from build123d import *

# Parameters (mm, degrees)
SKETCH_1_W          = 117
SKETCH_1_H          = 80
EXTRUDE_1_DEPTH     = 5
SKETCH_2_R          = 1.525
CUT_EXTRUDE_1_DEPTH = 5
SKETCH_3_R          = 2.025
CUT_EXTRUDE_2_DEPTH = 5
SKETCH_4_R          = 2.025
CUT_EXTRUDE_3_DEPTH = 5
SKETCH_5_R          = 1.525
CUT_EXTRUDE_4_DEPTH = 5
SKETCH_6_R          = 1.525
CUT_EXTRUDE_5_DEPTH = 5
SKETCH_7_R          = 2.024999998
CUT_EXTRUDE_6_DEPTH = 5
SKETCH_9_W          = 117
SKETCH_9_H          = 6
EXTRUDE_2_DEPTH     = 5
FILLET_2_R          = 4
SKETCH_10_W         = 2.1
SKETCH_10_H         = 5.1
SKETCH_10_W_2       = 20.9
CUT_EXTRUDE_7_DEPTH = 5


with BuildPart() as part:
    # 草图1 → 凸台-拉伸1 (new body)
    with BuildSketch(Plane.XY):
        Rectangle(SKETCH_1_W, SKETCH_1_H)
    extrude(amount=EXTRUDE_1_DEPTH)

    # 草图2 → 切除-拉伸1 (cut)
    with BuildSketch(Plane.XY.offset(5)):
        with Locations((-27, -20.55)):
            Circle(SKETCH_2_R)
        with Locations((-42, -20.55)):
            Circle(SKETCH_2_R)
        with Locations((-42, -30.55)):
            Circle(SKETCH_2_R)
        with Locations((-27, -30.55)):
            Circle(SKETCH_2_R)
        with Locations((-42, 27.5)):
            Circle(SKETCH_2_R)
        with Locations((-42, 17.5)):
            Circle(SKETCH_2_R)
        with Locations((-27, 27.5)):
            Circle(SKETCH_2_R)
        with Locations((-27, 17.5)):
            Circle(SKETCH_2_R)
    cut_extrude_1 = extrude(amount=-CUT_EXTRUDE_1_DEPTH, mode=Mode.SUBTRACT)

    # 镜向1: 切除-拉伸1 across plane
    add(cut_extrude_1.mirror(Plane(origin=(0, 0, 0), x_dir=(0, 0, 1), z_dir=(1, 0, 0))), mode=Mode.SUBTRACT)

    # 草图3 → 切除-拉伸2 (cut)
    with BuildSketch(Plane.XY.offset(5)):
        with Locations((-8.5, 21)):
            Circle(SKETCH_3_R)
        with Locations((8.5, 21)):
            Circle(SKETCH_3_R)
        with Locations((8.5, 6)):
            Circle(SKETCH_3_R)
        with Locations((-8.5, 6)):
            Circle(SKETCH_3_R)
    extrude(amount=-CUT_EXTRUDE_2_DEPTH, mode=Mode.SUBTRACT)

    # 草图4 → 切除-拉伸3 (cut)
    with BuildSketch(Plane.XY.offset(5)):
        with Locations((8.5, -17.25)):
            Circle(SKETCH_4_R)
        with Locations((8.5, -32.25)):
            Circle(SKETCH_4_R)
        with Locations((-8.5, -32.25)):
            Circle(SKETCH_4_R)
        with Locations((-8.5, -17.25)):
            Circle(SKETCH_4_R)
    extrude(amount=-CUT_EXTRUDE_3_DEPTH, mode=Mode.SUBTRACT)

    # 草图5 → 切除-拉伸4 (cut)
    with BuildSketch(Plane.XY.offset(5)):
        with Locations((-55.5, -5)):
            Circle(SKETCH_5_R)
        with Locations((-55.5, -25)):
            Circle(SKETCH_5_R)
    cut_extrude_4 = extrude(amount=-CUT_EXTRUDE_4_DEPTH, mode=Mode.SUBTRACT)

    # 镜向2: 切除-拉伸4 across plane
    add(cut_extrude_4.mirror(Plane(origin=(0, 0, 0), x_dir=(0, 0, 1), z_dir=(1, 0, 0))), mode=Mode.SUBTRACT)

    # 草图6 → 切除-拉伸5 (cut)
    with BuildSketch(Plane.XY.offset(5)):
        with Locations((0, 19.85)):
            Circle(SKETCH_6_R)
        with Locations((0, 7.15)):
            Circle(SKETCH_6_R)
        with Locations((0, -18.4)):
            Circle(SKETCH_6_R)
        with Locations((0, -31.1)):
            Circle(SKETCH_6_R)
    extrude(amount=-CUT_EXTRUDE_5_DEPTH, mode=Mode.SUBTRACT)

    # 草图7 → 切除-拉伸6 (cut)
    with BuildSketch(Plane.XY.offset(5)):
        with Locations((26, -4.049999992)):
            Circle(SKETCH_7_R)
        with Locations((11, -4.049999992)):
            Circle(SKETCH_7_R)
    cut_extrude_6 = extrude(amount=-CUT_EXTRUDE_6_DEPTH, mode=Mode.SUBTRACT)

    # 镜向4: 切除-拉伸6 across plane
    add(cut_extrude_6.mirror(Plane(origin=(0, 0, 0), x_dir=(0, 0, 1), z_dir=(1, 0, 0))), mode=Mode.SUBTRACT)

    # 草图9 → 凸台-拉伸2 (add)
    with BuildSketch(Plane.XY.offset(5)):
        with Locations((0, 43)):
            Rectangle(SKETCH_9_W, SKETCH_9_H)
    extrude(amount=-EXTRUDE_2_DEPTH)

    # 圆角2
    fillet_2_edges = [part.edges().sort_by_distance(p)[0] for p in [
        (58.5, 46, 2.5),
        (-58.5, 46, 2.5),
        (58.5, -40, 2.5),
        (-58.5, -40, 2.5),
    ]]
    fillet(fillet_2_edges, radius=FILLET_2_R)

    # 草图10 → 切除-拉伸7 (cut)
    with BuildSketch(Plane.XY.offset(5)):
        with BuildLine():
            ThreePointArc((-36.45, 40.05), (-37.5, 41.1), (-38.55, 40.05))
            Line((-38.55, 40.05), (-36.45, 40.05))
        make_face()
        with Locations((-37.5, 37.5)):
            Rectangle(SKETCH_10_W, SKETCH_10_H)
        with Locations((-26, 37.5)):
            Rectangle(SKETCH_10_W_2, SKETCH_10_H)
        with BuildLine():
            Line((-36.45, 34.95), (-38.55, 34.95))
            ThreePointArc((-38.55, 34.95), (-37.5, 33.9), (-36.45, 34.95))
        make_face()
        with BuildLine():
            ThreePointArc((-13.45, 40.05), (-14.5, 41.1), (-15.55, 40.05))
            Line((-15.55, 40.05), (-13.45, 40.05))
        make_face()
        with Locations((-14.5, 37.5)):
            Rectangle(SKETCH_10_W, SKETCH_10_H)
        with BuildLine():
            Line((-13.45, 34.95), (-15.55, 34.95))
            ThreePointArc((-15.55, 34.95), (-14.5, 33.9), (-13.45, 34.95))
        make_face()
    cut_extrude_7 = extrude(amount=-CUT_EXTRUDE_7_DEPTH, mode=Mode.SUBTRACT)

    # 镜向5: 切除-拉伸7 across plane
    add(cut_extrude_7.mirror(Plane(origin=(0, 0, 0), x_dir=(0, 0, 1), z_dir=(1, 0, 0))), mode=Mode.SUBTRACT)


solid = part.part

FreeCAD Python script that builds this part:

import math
import FreeCAD as App
import Part
import Sketcher
from FreeCAD import Vector
Q = App.Units.Quantity


def edges_at(feature, points):
    """Names of the edges that pass closest to the given points."""
    edges = feature.Shape.Edges
    near = lambda p: min(range(len(edges)), key=lambda i: edges[i].distToShape(Part.Vertex(*p))[0])
    return sorted({f"Edge{near(p) + 1}" for p in points})

doc = App.newDocument("Part")
body = doc.addObject("PartDesign::Body", "Body")

sketch1 = body.newObject("Sketcher::SketchObject", "Sketch")
sketch1.AttachmentSupport = (doc.getObject("XY_Plane"), [""])
sketch1.MapMode = "FlatFace"
sketch1.addGeometry([
    Part.LineSegment(Vector(-58, 40, 0), Vector(-58, -40, 0)),
    Part.LineSegment(Vector(-58, -40, 0), Vector(58, -40, 0)),
    Part.LineSegment(Vector(58, -40, 0), Vector(58, 40, 0)),
    Part.LineSegment(Vector(58, 40, 0), Vector(-58, 40, 0)),
], False)
sketch1.addConstraint([
    Sketcher.Constraint("Coincident", 0, 2, 1, 1),
    Sketcher.Constraint("Coincident", 1, 2, 2, 1),
    Sketcher.Constraint("Coincident", 2, 2, 3, 1),
    Sketcher.Constraint("Coincident", 3, 2, 0, 1),
    Sketcher.Constraint("Vertical", 0),
    Sketcher.Constraint("Horizontal", 1),
    Sketcher.Constraint("Vertical", 2),
    Sketcher.Constraint("Horizontal", 3),
    Sketcher.Constraint("Symmetric", 0, 2, 2, 2, -1, 1),
    Sketcher.Constraint("DistanceX", 1, 1, 1, 2, Q("117 mm")),
    Sketcher.Constraint("DistanceY", 0, 2, 0, 1, Q("80 mm")),
])
pad1 = body.newObject("PartDesign::Pad", "Pad")
pad1.Profile = sketch1
pad1.Length = 5

sketch2 = body.newObject("Sketcher::SketchObject", "Sketch001")
sketch2.AttachmentSupport = (doc.getObject("XY_Plane"), [""])
sketch2.MapMode = "FlatFace"
sketch2.AttachmentOffset = App.Placement(Vector(0, 0, 5), App.Rotation())
sketch2.addGeometry([
    Part.Circle(Vector(-27, -20.6, 0), Vector(0, 0, 1), 1.5),
    Part.Circle(Vector(-42, -20.6, 0), Vector(0, 0, 1), 1.5),
    Part.Circle(Vector(-42, -30.6, 0), Vector(0, 0, 1), 1.5),
    Part.Circle(Vector(-27, -30.6, 0), Vector(0, 0, 1), 1.5),
    Part.Circle(Vector(-42, 27.5, 0), Vector(0, 0, 1), 1.5),
    Part.Circle(Vector(-42, 17.5, 0), Vector(0, 0, 1), 1.5),
    Part.Circle(Vector(-27, 27.5, 0), Vector(0, 0, 1), 1.5),
    Part.Circle(Vector(-27, 17.5, 0), Vector(0, 0, 1), 1.5),
], False)
sketch2.addConstraint([
    Sketcher.Constraint("Equal", 0, 1),
    Sketcher.Constraint("Equal", 1, 2),
    Sketcher.Constraint("Equal", 2, 3),
    Sketcher.Constraint("Equal", 3, 4),
    Sketcher.Constraint("Equal", 4, 5),
    Sketcher.Constraint("Equal", 5, 6),
    Sketcher.Constraint("Equal", 6, 7),
    Sketcher.Constraint("Horizontal", 0, 3, 1, 3),
    Sketcher.Constraint("Horizontal", 2, 3, 3, 3),
    Sketcher.Constraint("Horizontal", 4, 3, 6, 3),
    Sketcher.Constraint("Horizontal", 5, 3, 7, 3),
    Sketcher.Constraint("Vertical", 1, 3, 2, 3),
    Sketcher.Constraint("Vertical", 0, 3, 3, 3),
    Sketcher.Constraint("Vertical", 2, 3, 4, 3),
    Sketcher.Constraint("Vertical", 4, 3, 5, 3),
    Sketcher.Constraint("Vertical", 3, 3, 6, 3),
    Sketcher.Constraint("Vertical", 6, 3, 7, 3),
    Sketcher.Constraint("Diameter", 0, Q("3.05 mm")),
    Sketcher.Constraint("DistanceX", 0, 3, -1, 1, Q("27 mm")),
    Sketcher.Constraint("DistanceX", 1, 3, -1, 1, Q("42 mm")),
    Sketcher.Constraint("DistanceY", 2, 3, 1, 3, Q("10 mm")),
    Sketcher.Constraint("DistanceY", 5, 3, 4, 3, Q("10 mm")),
    Sketcher.Constraint("DistanceY", -1, 1, 4, 3, Q("27.5 mm")),
    Sketcher.Constraint("DistanceY", 0, 3, -1, 1, Q("20.55 mm")),
])
pocket1 = body.newObject("PartDesign::Pocket", "Pocket")
pocket1.Profile = sketch2
pocket1.Length = 5
doc.recompute()

mirrored = body.newObject("PartDesign::Mirrored", "Mirrored")
mirrored.Originals = [pocket1]
mirrored.MirrorPlane = (doc.getObject("YZ_Plane"), [""])
body.Tip = mirrored

sketch3 = body.newObject("Sketcher::SketchObject", "Sketch002")
sketch3.AttachmentSupport = (doc.getObject("XY_Plane"), [""])
sketch3.MapMode = "FlatFace"
sketch3.AttachmentOffset = App.Placement(Vector(0, 0, 5), App.Rotation())
sketch3.addGeometry([
    Part.Circle(Vector(-8.5, 21, 0), Vector(0, 0, 1), 2),
    Part.Circle(Vector(8.5, 21, 0), Vector(0, 0, 1), 2),
    Part.Circle(Vector(8.5, 6, 0), Vector(0, 0, 1), 2),
    Part.Circle(Vector(-8.5, 6, 0), Vector(0, 0, 1), 2),
], False)
sketch3.addConstraint([
    Sketcher.Constraint("Equal", 0, 1),
    Sketcher.Constraint("Equal", 1, 2),
    Sketcher.Constraint("Equal", 2, 3),
    Sketcher.Constraint("Symmetric", 0, 3, 1, 3, -2),
    Sketcher.Constraint("Symmetric", 2, 3, 3, 3, -2),
    Sketcher.Constraint("Vertical", 1, 3, 2, 3),
    Sketcher.Constraint("Diameter", 0, Q("4.05 mm")),
    Sketcher.Constraint("DistanceY", -1, 1, 0, 3, Q("21 mm")),
    Sketcher.Constraint("DistanceY", -1, 1, 2, 3, Q("6 mm")),
    Sketcher.Constraint("DistanceX", 0, 3, 1, 3, Q("17 mm")),
])
pocket2 = body.newObject("PartDesign::Pocket", "Pocket001")
pocket2.Profile = sketch3
pocket2.Length = 5

sketch4 = body.newObject("Sketcher::SketchObject", "Sketch003")
sketch4.AttachmentSupport = (doc.getObject("XY_Plane"), [""])
sketch4.MapMode = "FlatFace"
sketch4.AttachmentOffset = App.Placement(Vector(0, 0, 5), App.Rotation())
sketch4.addGeometry([
    Part.Circle(Vector(8.5, -17.2, 0), Vector(0, 0, 1), 2),
    Part.Circle(Vector(8.5, -32.2, 0), Vector(0, 0, 1), 2),
    Part.Circle(Vector(-8.5, -32.2, 0), Vector(0, 0, 1), 2),
    Part.Circle(Vector(-8.5, -17.2, 0), Vector(0, 0, 1), 2),
], False)
sketch4.addConstraint([
    Sketcher.Constraint("Equal", 0, 1),
    Sketcher.Constraint("Equal", 1, 2),
    Sketcher.Constraint("Equal", 2, 3),
    Sketcher.Constraint("Symmetric", 1, 3, 2, 3, -2),
    Sketcher.Constraint("Symmetric", 0, 3, 3, 3, -2),
    Sketcher.Constraint("Vertical", 0, 3, 1, 3),
    Sketcher.Constraint("Diameter", 0, Q("4.05 mm")),
    Sketcher.Constraint("DistanceY", 1, 3, 0, 3, Q("15 mm")),
    Sketcher.Constraint("DistanceX", 2, 3, 1, 3, Q("17 mm")),
    Sketcher.Constraint("DistanceY", 0, 3, -1, 1, Q("17.25 mm")),
])
pocket3 = body.newObject("PartDesign::Pocket", "Pocket002")
pocket3.Profile = sketch4
pocket3.Length = 5

sketch5 = body.newObject("Sketcher::SketchObject", "Sketch004")
sketch5.AttachmentSupport = (doc.getObject("XY_Plane"), [""])
sketch5.MapMode = "FlatFace"
sketch5.AttachmentOffset = App.Placement(Vector(0, 0, 5), App.Rotation())
sketch5.addGeometry([
    Part.Circle(Vector(-55.5, -5, 0), Vector(0, 0, 1), 1.5),
    Part.Circle(Vector(-55.5, -25, 0), Vector(0, 0, 1), 1.5),
], False)
sketch5.addConstraint([
    Sketcher.Constraint("Equal", 0, 1),
    Sketcher.Constraint("Vertical", 0, 3, 1, 3),
    Sketcher.Constraint("Diameter", 0, Q("3.05 mm")),
    Sketcher.Constraint("DistanceY", 0, 3, -1, 1, Q("5 mm")),
    Sketcher.Constraint("DistanceY", 1, 3, -1, 1, Q("25 mm")),
    Sketcher.Constraint("DistanceX", 0, 3, -1, 1, Q("55.5 mm")),
])
pocket4 = body.newObject("PartDesign::Pocket", "Pocket003")
pocket4.Profile = sketch5
pocket4.Length = 5
doc.recompute()

mirrored2 = body.newObject("PartDesign::Mirrored", "Mirrored001")
mirrored2.Originals = [pocket4]
mirrored2.MirrorPlane = (doc.getObject("YZ_Plane"), [""])
body.Tip = mirrored2

sketch6 = body.newObject("Sketcher::SketchObject", "Sketch005")
sketch6.AttachmentSupport = (doc.getObject("XY_Plane"), [""])
sketch6.MapMode = "FlatFace"
sketch6.AttachmentOffset = App.Placement(Vector(0, 0, 5), App.Rotation())
sketch6.addGeometry([
    Part.Circle(Vector(0, 19.9, 0), Vector(0, 0, 1), 1.5),
    Part.Circle(Vector(0, 7.2, 0), Vector(0, 0, 1), 1.5),
    Part.Circle(Vector(0, -18.4, 0), Vector(0, 0, 1), 1.5),
    Part.Circle(Vector(0, -31.1, 0), Vector(0, 0, 1), 1.5),
], False)
sketch6.addConstraint([
    Sketcher.Constraint("Equal", 0, 1),
    Sketcher.Constraint("Equal", 1, 2),
    Sketcher.Constraint("Equal", 2, 3),
    Sketcher.Constraint("PointOnObject", 0, 3, -2),
    Sketcher.Constraint("PointOnObject", 1, 3, -2),
    Sketcher.Constraint("PointOnObject", 2, 3, -2),
    Sketcher.Constraint("PointOnObject", 3, 3, -2),
    Sketcher.Constraint("Diameter", 0, Q("3.05 mm")),
    Sketcher.Constraint("DistanceY", 2, 3, -1, 1, Q("18.4 mm")),
    Sketcher.Constraint("DistanceY", 3, 3, -1, 1, Q("31.1 mm")),
    Sketcher.Constraint("DistanceY", 1, 3, 0, 3, Q("12.7 mm")),
    Sketcher.Constraint("DistanceY", -1, 1, 0, 3, Q("19.85 mm")),
])
pocket5 = body.newObject("PartDesign::Pocket", "Pocket004")
pocket5.Profile = sketch6
pocket5.Length = 5

sketch7 = body.newObject("Sketcher::SketchObject", "Sketch006")
sketch7.AttachmentSupport = (doc.getObject("XY_Plane"), [""])
sketch7.MapMode = "FlatFace"
sketch7.AttachmentOffset = App.Placement(Vector(0, 0, 5), App.Rotation())
sketch7.addGeometry([
    Part.Circle(Vector(26, -4, 0), Vector(0, 0, 1), 2),
    Part.Circle(Vector(11, -4, 0), Vector(0, 0, 1), 2),
], False)
sketch7.addConstraint([
    Sketcher.Constraint("Equal", 0, 1),
    Sketcher.Constraint("Horizontal", 0, 3, 1, 3),
    Sketcher.Constraint("Diameter", 0, Q("4.05 mm")),
    Sketcher.Constraint("DistanceX", -1, 1, 0, 3, Q("26 mm")),
    Sketcher.Constraint("DistanceX", -1, 1, 1, 3, Q("11 mm")),
    Sketcher.Constraint("DistanceY", 0, 3, -1, 1, Q("4.05 mm")),
])
pocket6 = body.newObject("PartDesign::Pocket", "Pocket005")
pocket6.Profile = sketch7
pocket6.Length = 5
doc.recompute()

mirrored3 = body.newObject("PartDesign::Mirrored", "Mirrored002")
mirrored3.Originals = [pocket6]
mirrored3.MirrorPlane = (doc.getObject("YZ_Plane"), [""])
body.Tip = mirrored3

sketch8 = body.newObject("Sketcher::SketchObject", "Sketch007")
sketch8.AttachmentSupport = (doc.getObject("XY_Plane"), [""])
sketch8.MapMode = "FlatFace"
sketch8.AttachmentOffset = App.Placement(Vector(0, 0, 5), App.Rotation())
sketch8.addGeometry([
    Part.LineSegment(Vector(-58, 46, 0), Vector(-58, 40, 0)),
    Part.LineSegment(Vector(-58, 40, 0), Vector(58, 40, 0)),
    Part.LineSegment(Vector(58, 40, 0), Vector(58, 46, 0)),
    Part.LineSegment(Vector(58, 46, 0), Vector(-58, 46, 0)),
], False)
sketch8.addConstraint([
    Sketcher.Constraint("Coincident", 0, 2, 1, 1),
    Sketcher.Constraint("Coincident", 1, 2, 2, 1),
    Sketcher.Constraint("Coincident", 2, 2, 3, 1),
    Sketcher.Constraint("Coincident", 3, 2, 0, 1),
    Sketcher.Constraint("Vertical", 0),
    Sketcher.Constraint("Horizontal", 1),
    Sketcher.Constraint("Vertical", 2),
    Sketcher.Constraint("Horizontal", 3),
    Sketcher.Constraint("DistanceX", 1, 1, 1, 2, Q("117 mm")),
    Sketcher.Constraint("DistanceY", 0, 2, 0, 1, Q("6 mm")),
    Sketcher.Constraint("DistanceY", -1, 1, 0, 2, Q("40 mm")),
    Sketcher.Constraint("DistanceX", 0, 2, -1, 1, Q("58.5 mm")),
])
pad2 = body.newObject("PartDesign::Pad", "Pad001")
pad2.Profile = sketch8
pad2.Length = 5
pad2.Reversed = True
doc.recompute()

fillet = body.newObject("PartDesign::Fillet", "Fillet")
fillet.Base = (pad2, edges_at(pad2, [
    (58.5, 46, 2.5),
    (-58.5, 46, 2.5),
    (58.5, -40, 2.5),
    (-58.5, -40, 2.5),
]))
fillet.Radius = 4

sketch9 = body.newObject("Sketcher::SketchObject", "Sketch008")
sketch9.AttachmentSupport = (doc.getObject("XY_Plane"), [""])
sketch9.MapMode = "FlatFace"
sketch9.AttachmentOffset = App.Placement(Vector(0, 0, 5), App.Rotation())
sketch9.addGeometry([
    Part.ArcOfCircle(Part.Circle(Vector(-37.5, 40, 0), Vector(0, 0, 1), 1.1), math.radians(0), math.radians(180)),
    Part.LineSegment(Vector(-38.5, 40, 0), Vector(-38.5, 35, 0)),
    Part.ArcOfCircle(Part.Circle(Vector(-37.5, 35, 0), Vector(0, 0, 1), 1.1), math.radians(180), math.radians(360)),
    Part.LineSegment(Vector(-36.5, 35, 0), Vector(-15.6, 35, 0)),
    Part.ArcOfCircle(Part.Circle(Vector(-14.5, 35, 0), Vector(0, 0, 1), 1.1), math.radians(180), math.radians(360)),
    Part.LineSegment(Vector(-13.4, 35, 0), Vector(-13.4, 40, 0)),
    Part.ArcOfCircle(Part.Circle(Vector(-14.5, 40, 0), Vector(0, 0, 1), 1.1), math.radians(0), math.radians(180)),
    Part.LineSegment(Vector(-15.6, 40, 0), Vector(-36.5, 40, 0)),
], False)
sketch9.addConstraint([
    Sketcher.Constraint("Tangent", 0, 2, 1, 1),
    Sketcher.Constraint("Tangent", 1, 2, 2, 1),
    Sketcher.Constraint("Coincident", 2, 2, 3, 1),
    Sketcher.Constraint("Coincident", 3, 2, 4, 1),
    Sketcher.Constraint("Tangent", 4, 2, 5, 1),
    Sketcher.Constraint("Tangent", 5, 2, 6, 1),
    Sketcher.Constraint("Coincident", 6, 2, 7, 1),
    Sketcher.Constraint("Coincident", 7, 2, 0, 1),
    Sketcher.Constraint("Vertical", 1),
    Sketcher.Constraint("Horizontal", 3),
    Sketcher.Constraint("Vertical", 5),
    Sketcher.Constraint("Horizontal", 7),
    Sketcher.Constraint("Equal", 0, 2),
    Sketcher.Constraint("Equal", 2, 4),
    Sketcher.Constraint("Equal", 4, 6),
    Sketcher.Constraint("Horizontal", 2, 3, 4, 3),
    Sketcher.Constraint("Horizontal", 0, 3, 6, 3),
    Sketcher.Constraint("Horizontal", 1, 2, 2, 2),
    Sketcher.Constraint("Horizontal", 5, 2, 6, 2),
    Sketcher.Constraint("Radius", 0, Q("1.05 mm")),
    Sketcher.Constraint("DistanceX", 3, 1, 3, 2, Q("20.9 mm")),
    Sketcher.Constraint("DistanceY", 1, 2, 1, 1, Q("5.1 mm")),
    Sketcher.Constraint("DistanceX", 0, 3, -1, 1, Q("37.5 mm")),
    Sketcher.Constraint("DistanceY", -1, 1, 0, 3, Q("40.05 mm")),
])
pocket7 = body.newObject("PartDesign::Pocket", "Pocket006")
pocket7.Profile = sketch9
pocket7.Length = 5
doc.recompute()

mirrored4 = body.newObject("PartDesign::Mirrored", "Mirrored003")
mirrored4.Originals = [pocket7]
mirrored4.MirrorPlane = (doc.getObject("YZ_Plane"), [""])
body.Tip = mirrored4

doc.recompute()
